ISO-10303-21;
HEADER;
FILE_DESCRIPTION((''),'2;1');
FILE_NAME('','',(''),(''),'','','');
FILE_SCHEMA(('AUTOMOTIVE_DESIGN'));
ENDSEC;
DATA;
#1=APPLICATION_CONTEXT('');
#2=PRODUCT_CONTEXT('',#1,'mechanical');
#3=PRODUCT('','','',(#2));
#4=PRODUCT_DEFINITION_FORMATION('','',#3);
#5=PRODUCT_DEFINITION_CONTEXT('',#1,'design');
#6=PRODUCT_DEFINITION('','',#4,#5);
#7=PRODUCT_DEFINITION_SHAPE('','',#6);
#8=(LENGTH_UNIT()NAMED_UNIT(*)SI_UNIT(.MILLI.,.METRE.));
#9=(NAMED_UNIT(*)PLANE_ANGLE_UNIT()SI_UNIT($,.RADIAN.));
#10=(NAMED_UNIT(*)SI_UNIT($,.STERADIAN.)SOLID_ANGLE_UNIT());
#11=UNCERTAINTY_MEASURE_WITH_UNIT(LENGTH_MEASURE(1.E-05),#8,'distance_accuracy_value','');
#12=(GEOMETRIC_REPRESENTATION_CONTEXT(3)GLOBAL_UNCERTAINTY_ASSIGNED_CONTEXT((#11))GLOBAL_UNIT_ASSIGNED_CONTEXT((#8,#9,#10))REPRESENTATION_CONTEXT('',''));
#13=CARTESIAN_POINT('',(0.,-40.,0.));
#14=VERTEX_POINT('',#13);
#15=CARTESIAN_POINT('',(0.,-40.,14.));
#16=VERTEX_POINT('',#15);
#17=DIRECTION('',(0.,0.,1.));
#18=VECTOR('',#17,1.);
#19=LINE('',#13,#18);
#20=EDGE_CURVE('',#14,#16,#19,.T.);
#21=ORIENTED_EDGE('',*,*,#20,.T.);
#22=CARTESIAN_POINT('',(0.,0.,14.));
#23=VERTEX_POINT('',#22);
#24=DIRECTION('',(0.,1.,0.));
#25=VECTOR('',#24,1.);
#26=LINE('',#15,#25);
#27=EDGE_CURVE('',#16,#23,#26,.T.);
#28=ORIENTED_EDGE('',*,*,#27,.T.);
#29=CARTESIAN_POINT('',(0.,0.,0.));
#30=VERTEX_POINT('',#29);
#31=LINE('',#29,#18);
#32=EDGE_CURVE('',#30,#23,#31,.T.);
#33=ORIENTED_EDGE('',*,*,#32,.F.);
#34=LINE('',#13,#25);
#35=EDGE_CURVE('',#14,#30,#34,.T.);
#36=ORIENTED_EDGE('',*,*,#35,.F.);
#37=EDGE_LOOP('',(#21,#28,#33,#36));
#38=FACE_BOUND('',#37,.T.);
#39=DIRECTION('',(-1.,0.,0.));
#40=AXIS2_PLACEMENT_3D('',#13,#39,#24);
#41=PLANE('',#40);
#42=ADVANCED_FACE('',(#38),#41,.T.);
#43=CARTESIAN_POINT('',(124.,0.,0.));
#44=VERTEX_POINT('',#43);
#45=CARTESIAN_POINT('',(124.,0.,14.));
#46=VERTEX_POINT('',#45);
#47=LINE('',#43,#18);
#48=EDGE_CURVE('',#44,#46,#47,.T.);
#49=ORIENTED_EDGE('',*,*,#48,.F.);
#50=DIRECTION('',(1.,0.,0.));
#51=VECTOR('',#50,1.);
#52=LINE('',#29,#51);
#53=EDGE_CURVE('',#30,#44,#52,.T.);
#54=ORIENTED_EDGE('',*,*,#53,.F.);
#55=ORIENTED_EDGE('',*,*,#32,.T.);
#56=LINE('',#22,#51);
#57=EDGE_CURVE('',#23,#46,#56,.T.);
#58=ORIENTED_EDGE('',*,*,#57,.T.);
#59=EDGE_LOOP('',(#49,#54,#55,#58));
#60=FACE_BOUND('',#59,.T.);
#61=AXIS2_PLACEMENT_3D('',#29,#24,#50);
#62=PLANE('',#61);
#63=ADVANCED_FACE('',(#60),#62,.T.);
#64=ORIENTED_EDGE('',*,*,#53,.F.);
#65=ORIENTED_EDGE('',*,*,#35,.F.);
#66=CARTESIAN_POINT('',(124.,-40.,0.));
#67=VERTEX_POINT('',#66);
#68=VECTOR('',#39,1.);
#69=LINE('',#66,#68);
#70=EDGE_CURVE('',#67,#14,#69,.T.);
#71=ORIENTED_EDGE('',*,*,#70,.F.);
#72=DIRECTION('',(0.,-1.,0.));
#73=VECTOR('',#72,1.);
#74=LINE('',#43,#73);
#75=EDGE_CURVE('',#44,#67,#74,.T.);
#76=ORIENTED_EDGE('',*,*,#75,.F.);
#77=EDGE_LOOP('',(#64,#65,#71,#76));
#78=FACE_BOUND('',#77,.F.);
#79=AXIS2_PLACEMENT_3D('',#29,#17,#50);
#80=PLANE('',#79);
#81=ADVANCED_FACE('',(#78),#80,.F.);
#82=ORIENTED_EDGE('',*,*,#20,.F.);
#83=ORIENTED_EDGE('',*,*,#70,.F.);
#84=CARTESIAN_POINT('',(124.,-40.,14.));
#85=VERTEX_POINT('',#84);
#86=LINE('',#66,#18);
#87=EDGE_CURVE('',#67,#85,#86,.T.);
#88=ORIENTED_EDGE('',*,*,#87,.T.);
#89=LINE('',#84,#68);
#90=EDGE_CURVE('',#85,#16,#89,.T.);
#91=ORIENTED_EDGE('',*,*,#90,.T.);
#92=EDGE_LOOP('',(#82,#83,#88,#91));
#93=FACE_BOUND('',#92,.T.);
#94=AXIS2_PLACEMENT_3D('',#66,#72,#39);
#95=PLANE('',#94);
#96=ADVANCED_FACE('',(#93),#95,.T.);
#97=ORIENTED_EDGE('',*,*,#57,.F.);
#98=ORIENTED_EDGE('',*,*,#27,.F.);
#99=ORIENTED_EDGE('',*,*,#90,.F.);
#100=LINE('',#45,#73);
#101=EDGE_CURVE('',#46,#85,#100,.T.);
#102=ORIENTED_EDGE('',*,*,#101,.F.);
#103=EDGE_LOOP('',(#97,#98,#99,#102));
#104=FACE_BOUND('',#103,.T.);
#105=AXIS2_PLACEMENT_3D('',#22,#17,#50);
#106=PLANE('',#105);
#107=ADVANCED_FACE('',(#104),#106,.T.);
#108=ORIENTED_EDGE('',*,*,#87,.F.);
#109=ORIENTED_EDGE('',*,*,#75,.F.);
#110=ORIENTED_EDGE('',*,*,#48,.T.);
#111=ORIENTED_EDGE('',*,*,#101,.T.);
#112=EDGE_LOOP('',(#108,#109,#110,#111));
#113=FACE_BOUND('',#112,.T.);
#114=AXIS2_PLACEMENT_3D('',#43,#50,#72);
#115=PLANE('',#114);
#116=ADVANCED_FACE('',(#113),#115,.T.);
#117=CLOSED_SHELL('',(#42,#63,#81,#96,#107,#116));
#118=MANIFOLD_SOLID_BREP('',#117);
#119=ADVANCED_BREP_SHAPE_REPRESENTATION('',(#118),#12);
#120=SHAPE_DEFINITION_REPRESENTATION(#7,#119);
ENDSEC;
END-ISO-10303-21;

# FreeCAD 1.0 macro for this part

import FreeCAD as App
import Part
import Sketcher

V = App.Vector
Q = App.Units.Quantity


def add_polygon(sketch, points):
    """Adds a closed chain of lines whose ends are joined by coincident constraints."""
    first, n = sketch.GeometryCount, len(points)
    for a, b in zip(points, points[1:] + points[:1]):
        sketch.addGeometry(Part.LineSegment(App.Vector(*a, 0), App.Vector(*b, 0)), False)
    for i in range(n):
        sketch.addConstraint(Sketcher.Constraint("Coincident", first + i, 2, first + (i + 1) % n, 1))

doc = App.newDocument("Part")
params = doc.addObject("Spreadsheet::Sheet", "Params")
for row, (alias, value) in enumerate([
    ("sketch1_width", "124 mm"),
    ("sketch1_height", "40 mm"),
    ("pad1_length", "14 mm"),
], start=1):
    params.set(f"A{row}", alias)
    params.set(f"B{row}", "=" + value)
    params.setAlias(f"B{row}", alias)

body = doc.addObject("PartDesign::Body", "Body")

# Sketch on XY plane
sketch1 = body.newObject("Sketcher::SketchObject", "Sketch")
sketch1.AttachmentSupport = (doc.getObject("XY_Plane"), [""])
sketch1.MapMode = "FlatFace"
add_polygon(sketch1, [(124, 0), (0, 0), (0, -40), (124, -40)])  # lines 0-3
sketch1.addConstraint([
    Sketcher.Constraint("Horizontal", 0),
    Sketcher.Constraint("Vertical", 1),
    Sketcher.Constraint("Horizontal", 2),
    Sketcher.Constraint("Vertical", 3),
    Sketcher.Constraint("Coincident", 0, 2, -1, 1),
    Sketcher.Constraint("DistanceX", 0, 2, 0, 1, Q("124 mm")),
    Sketcher.Constraint("DistanceY", 1, 2, 1, 1, Q("40 mm")),
])
sketch1.setExpression("Constraints[9]", "Params.sketch1_width")
sketch1.setExpression("Constraints[10]", "Params.sketch1_height")
pad1 = body.newObject("PartDesign::Pad", "Pad")
pad1.Profile = sketch1
pad1.setExpression("Length", "Params.pad1_length")

doc.recompute()
